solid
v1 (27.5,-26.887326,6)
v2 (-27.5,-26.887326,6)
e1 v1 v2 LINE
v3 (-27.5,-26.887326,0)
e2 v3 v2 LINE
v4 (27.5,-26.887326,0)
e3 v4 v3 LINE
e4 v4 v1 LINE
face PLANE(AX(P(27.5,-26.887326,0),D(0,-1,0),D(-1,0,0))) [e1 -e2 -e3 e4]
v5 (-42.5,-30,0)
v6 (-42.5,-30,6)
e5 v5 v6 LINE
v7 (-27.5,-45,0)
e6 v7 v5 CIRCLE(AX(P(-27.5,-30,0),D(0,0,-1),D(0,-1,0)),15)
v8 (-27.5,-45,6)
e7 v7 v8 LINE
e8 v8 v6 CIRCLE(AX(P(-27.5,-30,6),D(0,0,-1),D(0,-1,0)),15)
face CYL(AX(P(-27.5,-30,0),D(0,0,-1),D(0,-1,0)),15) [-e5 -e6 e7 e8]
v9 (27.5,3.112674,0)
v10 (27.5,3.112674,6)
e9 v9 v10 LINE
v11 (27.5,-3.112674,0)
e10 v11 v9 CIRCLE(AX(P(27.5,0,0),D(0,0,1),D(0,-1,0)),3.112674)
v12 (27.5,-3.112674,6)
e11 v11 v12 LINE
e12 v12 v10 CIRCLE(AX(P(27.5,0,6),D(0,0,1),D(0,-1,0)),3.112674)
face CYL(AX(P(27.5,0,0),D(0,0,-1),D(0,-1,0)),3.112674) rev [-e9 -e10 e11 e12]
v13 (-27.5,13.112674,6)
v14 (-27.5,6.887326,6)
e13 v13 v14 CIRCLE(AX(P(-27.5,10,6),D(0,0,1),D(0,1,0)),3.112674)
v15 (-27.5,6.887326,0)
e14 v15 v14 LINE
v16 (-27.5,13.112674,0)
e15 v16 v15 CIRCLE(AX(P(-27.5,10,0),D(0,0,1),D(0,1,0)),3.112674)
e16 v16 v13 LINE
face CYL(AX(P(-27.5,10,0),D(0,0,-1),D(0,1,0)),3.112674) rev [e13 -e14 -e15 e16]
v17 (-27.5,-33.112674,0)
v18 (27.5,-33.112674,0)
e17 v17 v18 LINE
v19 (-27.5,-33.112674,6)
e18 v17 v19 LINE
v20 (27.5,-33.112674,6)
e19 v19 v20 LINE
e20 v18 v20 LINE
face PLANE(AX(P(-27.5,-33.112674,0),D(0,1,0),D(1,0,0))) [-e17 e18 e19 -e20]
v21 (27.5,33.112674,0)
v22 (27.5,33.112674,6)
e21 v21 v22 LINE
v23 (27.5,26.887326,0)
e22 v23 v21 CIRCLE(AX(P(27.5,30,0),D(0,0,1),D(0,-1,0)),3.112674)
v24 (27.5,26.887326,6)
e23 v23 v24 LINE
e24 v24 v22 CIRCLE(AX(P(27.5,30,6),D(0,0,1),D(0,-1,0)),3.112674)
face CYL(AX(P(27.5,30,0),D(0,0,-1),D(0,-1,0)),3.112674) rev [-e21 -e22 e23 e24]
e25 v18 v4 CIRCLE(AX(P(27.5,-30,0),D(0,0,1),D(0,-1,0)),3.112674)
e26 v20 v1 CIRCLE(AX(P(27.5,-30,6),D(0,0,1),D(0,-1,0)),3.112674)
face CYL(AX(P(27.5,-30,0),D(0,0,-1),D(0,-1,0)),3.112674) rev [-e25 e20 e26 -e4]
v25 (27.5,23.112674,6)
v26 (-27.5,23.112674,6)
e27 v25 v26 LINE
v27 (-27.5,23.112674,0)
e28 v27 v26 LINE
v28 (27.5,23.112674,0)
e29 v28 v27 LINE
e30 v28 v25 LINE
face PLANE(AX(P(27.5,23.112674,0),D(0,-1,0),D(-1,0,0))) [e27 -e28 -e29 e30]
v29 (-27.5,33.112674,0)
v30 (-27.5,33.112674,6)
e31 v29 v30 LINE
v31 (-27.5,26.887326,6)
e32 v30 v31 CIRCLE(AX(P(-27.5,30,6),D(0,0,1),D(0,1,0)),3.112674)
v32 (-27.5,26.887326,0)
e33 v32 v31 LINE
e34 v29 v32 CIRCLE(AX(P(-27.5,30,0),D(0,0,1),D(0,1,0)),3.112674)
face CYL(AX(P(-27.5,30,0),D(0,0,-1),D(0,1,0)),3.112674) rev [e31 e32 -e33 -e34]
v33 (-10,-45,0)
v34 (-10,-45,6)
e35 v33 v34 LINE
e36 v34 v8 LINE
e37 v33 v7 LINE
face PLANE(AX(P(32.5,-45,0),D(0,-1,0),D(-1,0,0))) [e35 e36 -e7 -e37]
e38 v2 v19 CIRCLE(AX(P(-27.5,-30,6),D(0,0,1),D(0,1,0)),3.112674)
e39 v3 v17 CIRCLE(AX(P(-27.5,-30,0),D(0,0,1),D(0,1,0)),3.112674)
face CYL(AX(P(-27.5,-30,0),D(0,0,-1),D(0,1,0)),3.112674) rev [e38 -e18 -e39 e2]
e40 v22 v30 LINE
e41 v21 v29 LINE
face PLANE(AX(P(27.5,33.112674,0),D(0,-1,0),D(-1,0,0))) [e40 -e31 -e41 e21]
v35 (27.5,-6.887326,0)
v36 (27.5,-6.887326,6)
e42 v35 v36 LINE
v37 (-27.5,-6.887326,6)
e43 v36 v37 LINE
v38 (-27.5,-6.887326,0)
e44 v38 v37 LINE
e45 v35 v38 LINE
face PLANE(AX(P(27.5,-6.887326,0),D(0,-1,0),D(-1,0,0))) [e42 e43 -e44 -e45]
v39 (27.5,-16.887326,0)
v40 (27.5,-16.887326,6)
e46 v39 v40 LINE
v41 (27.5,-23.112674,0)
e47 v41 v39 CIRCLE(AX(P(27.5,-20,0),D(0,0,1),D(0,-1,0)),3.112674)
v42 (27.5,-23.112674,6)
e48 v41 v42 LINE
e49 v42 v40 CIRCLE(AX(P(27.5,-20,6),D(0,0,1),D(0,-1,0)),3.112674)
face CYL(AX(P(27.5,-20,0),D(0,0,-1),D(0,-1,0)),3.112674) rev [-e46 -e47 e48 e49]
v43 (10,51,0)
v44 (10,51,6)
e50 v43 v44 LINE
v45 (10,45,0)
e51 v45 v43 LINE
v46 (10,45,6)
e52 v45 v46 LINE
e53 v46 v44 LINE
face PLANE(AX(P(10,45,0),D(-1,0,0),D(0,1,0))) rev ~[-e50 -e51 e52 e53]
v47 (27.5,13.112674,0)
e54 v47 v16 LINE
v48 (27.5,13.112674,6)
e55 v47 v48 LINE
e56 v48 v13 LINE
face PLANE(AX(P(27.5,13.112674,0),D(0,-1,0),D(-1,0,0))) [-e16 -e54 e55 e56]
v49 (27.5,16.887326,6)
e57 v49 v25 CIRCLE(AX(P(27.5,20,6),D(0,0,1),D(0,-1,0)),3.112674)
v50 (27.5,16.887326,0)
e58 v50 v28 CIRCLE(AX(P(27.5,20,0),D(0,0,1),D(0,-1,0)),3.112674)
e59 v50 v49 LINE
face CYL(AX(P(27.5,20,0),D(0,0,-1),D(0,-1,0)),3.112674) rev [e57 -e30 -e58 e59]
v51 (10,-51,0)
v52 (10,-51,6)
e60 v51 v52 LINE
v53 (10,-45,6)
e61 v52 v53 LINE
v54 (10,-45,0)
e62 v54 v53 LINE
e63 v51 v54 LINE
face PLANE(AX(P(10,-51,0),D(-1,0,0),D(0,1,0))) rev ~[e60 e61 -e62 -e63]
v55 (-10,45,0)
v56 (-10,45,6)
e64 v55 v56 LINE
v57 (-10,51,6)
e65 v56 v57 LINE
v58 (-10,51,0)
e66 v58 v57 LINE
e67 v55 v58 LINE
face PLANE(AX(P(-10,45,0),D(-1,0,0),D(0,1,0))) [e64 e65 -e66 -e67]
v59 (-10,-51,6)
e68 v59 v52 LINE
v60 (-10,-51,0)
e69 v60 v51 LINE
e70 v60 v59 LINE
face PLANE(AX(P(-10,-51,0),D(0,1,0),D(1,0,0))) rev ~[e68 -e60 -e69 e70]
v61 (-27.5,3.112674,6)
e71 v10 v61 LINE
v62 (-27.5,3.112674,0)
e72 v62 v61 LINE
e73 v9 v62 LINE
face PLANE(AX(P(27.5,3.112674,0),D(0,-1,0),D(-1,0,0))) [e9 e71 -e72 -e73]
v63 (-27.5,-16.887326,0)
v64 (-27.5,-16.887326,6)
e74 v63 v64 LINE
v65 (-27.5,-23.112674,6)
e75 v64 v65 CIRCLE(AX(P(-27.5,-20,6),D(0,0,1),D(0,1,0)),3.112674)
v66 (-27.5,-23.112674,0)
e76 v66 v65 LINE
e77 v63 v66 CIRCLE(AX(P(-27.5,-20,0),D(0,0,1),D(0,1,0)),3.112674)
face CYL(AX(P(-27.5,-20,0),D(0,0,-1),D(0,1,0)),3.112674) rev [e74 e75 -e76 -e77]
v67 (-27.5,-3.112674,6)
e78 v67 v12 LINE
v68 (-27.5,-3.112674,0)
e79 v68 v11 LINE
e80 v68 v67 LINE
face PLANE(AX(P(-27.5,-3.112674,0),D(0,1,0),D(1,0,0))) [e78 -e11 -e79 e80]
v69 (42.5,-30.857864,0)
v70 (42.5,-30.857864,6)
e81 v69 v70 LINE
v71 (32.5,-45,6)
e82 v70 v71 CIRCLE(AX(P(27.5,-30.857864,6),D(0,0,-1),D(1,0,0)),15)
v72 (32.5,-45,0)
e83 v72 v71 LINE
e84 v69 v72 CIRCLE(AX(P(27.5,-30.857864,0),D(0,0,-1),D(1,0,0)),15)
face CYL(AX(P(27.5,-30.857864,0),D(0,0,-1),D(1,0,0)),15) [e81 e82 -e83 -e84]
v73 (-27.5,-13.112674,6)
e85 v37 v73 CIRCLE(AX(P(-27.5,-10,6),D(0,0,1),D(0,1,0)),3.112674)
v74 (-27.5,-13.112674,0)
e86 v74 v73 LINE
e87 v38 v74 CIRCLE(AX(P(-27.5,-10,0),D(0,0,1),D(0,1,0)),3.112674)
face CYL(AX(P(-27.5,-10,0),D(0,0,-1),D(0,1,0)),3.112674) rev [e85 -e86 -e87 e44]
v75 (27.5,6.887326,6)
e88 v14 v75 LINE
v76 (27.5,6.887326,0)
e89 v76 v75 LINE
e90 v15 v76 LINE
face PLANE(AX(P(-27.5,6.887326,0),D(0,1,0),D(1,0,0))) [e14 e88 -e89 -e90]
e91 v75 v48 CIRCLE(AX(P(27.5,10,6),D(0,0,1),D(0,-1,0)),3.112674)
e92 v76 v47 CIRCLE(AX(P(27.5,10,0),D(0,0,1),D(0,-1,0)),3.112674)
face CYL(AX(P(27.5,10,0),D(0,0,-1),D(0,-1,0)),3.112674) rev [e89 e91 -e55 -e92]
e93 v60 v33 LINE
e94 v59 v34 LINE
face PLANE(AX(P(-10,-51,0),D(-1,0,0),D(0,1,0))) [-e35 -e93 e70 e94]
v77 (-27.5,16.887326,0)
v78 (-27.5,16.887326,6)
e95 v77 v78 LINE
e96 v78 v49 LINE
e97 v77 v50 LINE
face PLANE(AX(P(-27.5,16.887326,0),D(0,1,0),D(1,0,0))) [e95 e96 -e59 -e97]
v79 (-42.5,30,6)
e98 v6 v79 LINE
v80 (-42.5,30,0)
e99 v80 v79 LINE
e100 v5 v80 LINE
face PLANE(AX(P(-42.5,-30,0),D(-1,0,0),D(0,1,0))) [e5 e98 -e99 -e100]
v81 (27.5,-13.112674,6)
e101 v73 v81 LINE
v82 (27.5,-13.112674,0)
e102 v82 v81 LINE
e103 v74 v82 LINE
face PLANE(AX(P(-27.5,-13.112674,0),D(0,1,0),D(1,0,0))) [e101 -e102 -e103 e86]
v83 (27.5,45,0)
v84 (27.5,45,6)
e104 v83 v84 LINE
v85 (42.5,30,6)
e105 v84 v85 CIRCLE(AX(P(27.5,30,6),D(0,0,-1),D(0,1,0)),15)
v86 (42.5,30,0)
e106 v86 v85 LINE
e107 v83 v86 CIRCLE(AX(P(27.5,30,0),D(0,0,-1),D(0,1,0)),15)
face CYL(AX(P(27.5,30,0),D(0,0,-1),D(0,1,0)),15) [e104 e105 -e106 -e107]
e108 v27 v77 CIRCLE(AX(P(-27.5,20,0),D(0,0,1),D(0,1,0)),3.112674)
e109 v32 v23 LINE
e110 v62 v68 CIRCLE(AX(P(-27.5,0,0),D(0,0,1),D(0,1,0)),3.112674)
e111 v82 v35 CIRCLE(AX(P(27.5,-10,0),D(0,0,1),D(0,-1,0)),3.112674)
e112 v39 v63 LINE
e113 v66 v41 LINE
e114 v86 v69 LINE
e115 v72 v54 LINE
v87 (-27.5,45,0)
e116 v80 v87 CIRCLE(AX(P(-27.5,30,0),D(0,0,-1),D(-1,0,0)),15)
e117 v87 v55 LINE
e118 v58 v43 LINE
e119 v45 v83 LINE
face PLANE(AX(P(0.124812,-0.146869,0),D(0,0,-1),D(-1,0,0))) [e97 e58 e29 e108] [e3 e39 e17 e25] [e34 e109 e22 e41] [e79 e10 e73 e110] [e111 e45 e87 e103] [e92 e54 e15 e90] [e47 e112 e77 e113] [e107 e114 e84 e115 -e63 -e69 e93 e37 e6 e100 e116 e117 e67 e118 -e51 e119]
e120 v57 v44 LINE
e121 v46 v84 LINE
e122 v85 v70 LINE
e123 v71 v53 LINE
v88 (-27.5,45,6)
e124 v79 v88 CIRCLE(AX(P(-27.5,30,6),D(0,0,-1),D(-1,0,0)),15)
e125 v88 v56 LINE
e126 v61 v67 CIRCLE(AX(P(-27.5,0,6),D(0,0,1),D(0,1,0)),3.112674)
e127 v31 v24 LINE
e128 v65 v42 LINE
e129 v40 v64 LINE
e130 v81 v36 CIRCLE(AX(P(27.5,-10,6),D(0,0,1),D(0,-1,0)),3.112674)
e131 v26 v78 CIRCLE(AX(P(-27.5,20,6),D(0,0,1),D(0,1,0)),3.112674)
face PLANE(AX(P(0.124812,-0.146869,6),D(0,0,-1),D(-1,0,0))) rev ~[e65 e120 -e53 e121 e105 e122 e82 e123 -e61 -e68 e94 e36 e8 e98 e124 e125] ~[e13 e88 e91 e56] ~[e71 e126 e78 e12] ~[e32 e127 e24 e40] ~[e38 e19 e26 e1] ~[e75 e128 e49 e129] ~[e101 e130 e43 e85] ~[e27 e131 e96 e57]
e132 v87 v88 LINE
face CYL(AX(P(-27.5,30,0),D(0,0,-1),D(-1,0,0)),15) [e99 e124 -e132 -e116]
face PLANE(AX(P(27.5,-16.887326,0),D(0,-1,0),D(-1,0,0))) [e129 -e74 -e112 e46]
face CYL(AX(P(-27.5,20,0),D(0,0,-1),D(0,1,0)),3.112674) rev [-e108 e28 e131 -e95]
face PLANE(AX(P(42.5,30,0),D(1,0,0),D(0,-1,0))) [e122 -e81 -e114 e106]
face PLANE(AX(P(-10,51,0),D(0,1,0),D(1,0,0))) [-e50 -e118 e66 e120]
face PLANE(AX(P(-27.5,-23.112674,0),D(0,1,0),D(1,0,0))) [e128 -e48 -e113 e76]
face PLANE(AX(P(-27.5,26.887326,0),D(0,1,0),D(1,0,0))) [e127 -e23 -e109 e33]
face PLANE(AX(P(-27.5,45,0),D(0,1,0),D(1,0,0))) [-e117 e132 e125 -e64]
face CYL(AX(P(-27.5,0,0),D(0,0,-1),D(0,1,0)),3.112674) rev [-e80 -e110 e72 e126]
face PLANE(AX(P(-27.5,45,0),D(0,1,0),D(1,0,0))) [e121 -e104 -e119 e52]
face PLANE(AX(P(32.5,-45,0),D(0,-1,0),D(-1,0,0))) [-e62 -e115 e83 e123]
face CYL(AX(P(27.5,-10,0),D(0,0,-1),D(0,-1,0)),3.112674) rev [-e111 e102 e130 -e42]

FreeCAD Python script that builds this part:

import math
import FreeCAD as App
import Part
import Sketcher

doc = App.newDocument("Part")
body = doc.addObject("PartDesign::Body", "Body")

sketch1 = body.newObject("Sketcher::SketchObject", "Sketch")
sketch1.AttachmentSupport = (doc.getObject("XY_Plane"), [""])
sketch1.MapMode = "FlatFace"
sketch1.addGeometry(Part.ArcOfCircle(Part.Circle(App.Vector(27.5, 30, 0), App.Vector(0, 0, 1), 15), math.radians(0), math.radians(90)), False)
sketch1.addGeometry(Part.LineSegment(App.Vector(27.5, 45, 0), App.Vector(10, 45, 0)), False)
sketch1.addGeometry(Part.LineSegment(App.Vector(10, 45, 0), App.Vector(10, 51, 0)), False)
sketch1.addGeometry(Part.LineSegment(App.Vector(10, 51, 0), App.Vector(-10, 51, 0)), False)
sketch1.addGeometry(Part.LineSegment(App.Vector(-10, 51, 0), App.Vector(-10, 45, 0)), False)
sketch1.addGeometry(Part.LineSegment(App.Vector(-10, 45, 0), App.Vector(-27.5, 45, 0)), False)
sketch1.addGeometry(Part.ArcOfCircle(Part.Circle(App.Vector(-27.5, 30, 0), App.Vector(0, 0, 1), 15), math.radians(90), math.radians(180)), False)
sketch1.addGeometry(Part.LineSegment(App.Vector(-42.5, 30, 0), App.Vector(-42.5, -30, 0)), False)
sketch1.addGeometry(Part.ArcOfCircle(Part.Circle(App.Vector(-27.5, -30, 0), App.Vector(0, 0, 1), 15), math.radians(180), math.radians(270)), False)
sketch1.addGeometry(Part.LineSegment(App.Vector(-27.5, -45, 0), App.Vector(-10, -45, 0)), False)
sketch1.addGeometry(Part.LineSegment(App.Vector(-10, -45, 0), App.Vector(-10, -51, 0)), False)
sketch1.addGeometry(Part.LineSegment(App.Vector(-10, -51, 0), App.Vector(10, -51, 0)), False)
sketch1.addGeometry(Part.LineSegment(App.Vector(10, -51, 0), App.Vector(10, -45, 0)), False)
sketch1.addGeometry(Part.LineSegment(App.Vector(10, -45, 0), App.Vector(32.5, -45, 0)), False)
sketch1.addGeometry(Part.ArcOfCircle(Part.Circle(App.Vector(27.5, -30.9, 0), App.Vector(0, 0, 1), 15), math.radians(-71), math.radians(0)), False)
sketch1.addGeometry(Part.LineSegment(App.Vector(42.5, -30.9, 0), App.Vector(42.5, 30, 0)), False)
sketch1.addGeometry(Part.LineSegment(App.Vector(27.5, -33.1, 0), App.Vector(-27.5, -33.1, 0)), False)
sketch1.addGeometry(Part.ArcOfCircle(Part.Circle(App.Vector(-27.5, -30, 0), App.Vector(0, 0, 1), 3.1), math.radians(90), math.radians(270)), False)
sketch1.addGeometry(Part.LineSegment(App.Vector(-27.5, -26.9, 0), App.Vector(27.5, -26.9, 0)), False)
sketch1.addGeometry(Part.ArcOfCircle(Part.Circle(App.Vector(27.5, -30, 0), App.Vector(0, 0, 1), 3.1), math.radians(-90), math.radians(90)), False)
sketch1.addGeometry(Part.LineSegment(App.Vector(27.5, -23.1, 0), App.Vector(-27.5, -23.1, 0)), False)
sketch1.addGeometry(Part.ArcOfCircle(Part.Circle(App.Vector(-27.5, -20, 0), App.Vector(0, 0, 1), 3.1), math.radians(90), math.radians(270)), False)
sketch1.addGeometry(Part.LineSegment(App.Vector(-27.5, -16.9, 0), App.Vector(27.5, -16.9, 0)), False)
sketch1.addGeometry(Part.ArcOfCircle(Part.Circle(App.Vector(27.5, -20, 0), App.Vector(0, 0, 1), 3.1), math.radians(-90), math.radians(90)), False)
sketch1.addGeometry(Part.LineSegment(App.Vector(27.5, -13.1, 0), App.Vector(-27.5, -13.1, 0)), False)
sketch1.addGeometry(Part.ArcOfCircle(Part.Circle(App.Vector(-27.5, -10, 0), App.Vector(0, 0, 1), 3.1), math.radians(90), math.radians(270)), False)
sketch1.addGeometry(Part.LineSegment(App.Vector(-27.5, -6.9, 0), App.Vector(27.5, -6.9, 0)), False)
sketch1.addGeometry(Part.ArcOfCircle(Part.Circle(App.Vector(27.5, -10, 0), App.Vector(0, 0, 1), 3.1), math.radians(-90), math.radians(90)), False)
sketch1.addGeometry(Part.LineSegment(App.Vector(27.5, -3.1, 0), App.Vector(-27.5, -3.1, 0)), False)
sketch1.addGeometry(Part.ArcOfCircle(Part.Circle(App.Vector(-27.5, 0, 0), App.Vector(0, 0, 1), 3.1), math.radians(90), math.radians(270)), False)
sketch1.addGeometry(Part.LineSegment(App.Vector(-27.5, 3.1, 0), App.Vector(27.5, 3.1, 0)), False)
sketch1.addGeometry(Part.ArcOfCircle(Part.Circle(App.Vector(27.5, 0, 0), App.Vector(0, 0, 1), 3.1), math.radians(-90), math.radians(90)), False)
sketch1.addGeometry(Part.LineSegment(App.Vector(27.5, 6.9, 0), App.Vector(-27.5, 6.9, 0)), False)
sketch1.addGeometry(Part.ArcOfCircle(Part.Circle(App.Vector(-27.5, 10, 0), App.Vector(0, 0, 1), 3.1), math.radians(90), math.radians(270)), False)
sketch1.addGeometry(Part.LineSegment(App.Vector(-27.5, 13.1, 0), App.Vector(27.5, 13.1, 0)), False)
sketch1.addGeometry(Part.ArcOfCircle(Part.Circle(App.Vector(27.5, 10, 0), App.Vector(0, 0, 1), 3.1), math.radians(-90), math.radians(90)), False)
sketch1.addGeometry(Part.LineSegment(App.Vector(27.5, 16.9, 0), App.Vector(-27.5, 16.9, 0)), False)
sketch1.addGeometry(Part.ArcOfCircle(Part.Circle(App.Vector(-27.5, 20, 0), App.Vector(0, 0, 1), 3.1), math.radians(90), math.radians(270)), False)
sketch1.addGeometry(Part.LineSegment(App.Vector(-27.5, 23.1, 0), App.Vector(27.5, 23.1, 0)), False)
sketch1.addGeometry(Part.ArcOfCircle(Part.Circle(App.Vector(27.5, 20, 0), App.Vector(0, 0, 1), 3.1), math.radians(-90), math.radians(90)), False)
sketch1.addGeometry(Part.LineSegment(App.Vector(27.5, 26.9, 0), App.Vector(-27.5, 26.9, 0)), False)
sketch1.addGeometry(Part.ArcOfCircle(Part.Circle(App.Vector(-27.5, 30, 0), App.Vector(0, 0, 1), 3.1), math.radians(90), math.radians(270)), False)
sketch1.addGeometry(Part.LineSegment(App.Vector(-27.5, 33.1, 0), App.Vector(27.5, 33.1, 0)), False)
sketch1.addGeometry(Part.ArcOfCircle(Part.Circle(App.Vector(27.5, 30, 0), App.Vector(0, 0, 1), 3.1), math.radians(-90), math.radians(90)), False)
sketch1.addConstraint(Sketcher.Constraint("Tangent", 0, 2, 1, 1))
sketch1.addConstraint(Sketcher.Constraint("Coincident", 1, 2, 2, 1))
sketch1.addConstraint(Sketcher.Constraint("Coincident", 2, 2, 3, 1))
sketch1.addConstraint(Sketcher.Constraint("Coincident", 3, 2, 4, 1))
sketch1.addConstraint(Sketcher.Constraint("Coincident", 4, 2, 5, 1))
sketch1.addConstraint(Sketcher.Constraint("Tangent", 5, 2, 6, 1))
sketch1.addConstraint(Sketcher.Constraint("Tangent", 6, 2, 7, 1))
sketch1.addConstraint(Sketcher.Constraint("Tangent", 7, 2, 8, 1))
sketch1.addConstraint(Sketcher.Constraint("Tangent", 8, 2, 9, 1))
sketch1.addConstraint(Sketcher.Constraint("Coincident", 9, 2, 10, 1))
sketch1.addConstraint(Sketcher.Constraint("Coincident", 10, 2, 11, 1))
sketch1.addConstraint(Sketcher.Constraint("Coincident", 11, 2, 12, 1))
sketch1.addConstraint(Sketcher.Constraint("Coincident", 12, 2, 13, 1))
sketch1.addConstraint(Sketcher.Constraint("Coincident", 13, 2, 14, 1))
sketch1.addConstraint(Sketcher.Constraint("Tangent", 14, 2, 15, 1))
sketch1.addConstraint(Sketcher.Constraint("Tangent", 15, 2, 0, 1))
sketch1.addConstraint(Sketcher.Constraint("Tangent", 16, 2, 17, 2))
sketch1.addConstraint(Sketcher.Constraint("Tangent", 17, 1, 18, 1))
sketch1.addConstraint(Sketcher.Constraint("Tangent", 18, 2, 19, 2))
sketch1.addConstraint(Sketcher.Constraint("Tangent", 19, 1, 16, 1))
sketch1.addConstraint(Sketcher.Constraint("Tangent", 20, 2, 21, 2))
sketch1.addConstraint(Sketcher.Constraint("Tangent", 21, 1, 22, 1))
sketch1.addConstraint(Sketcher.Constraint("Tangent", 22, 2, 23, 2))
sketch1.addConstraint(Sketcher.Constraint("Tangent", 23, 1, 20, 1))
sketch1.addConstraint(Sketcher.Constraint("Tangent", 24, 2, 25, 2))
sketch1.addConstraint(Sketcher.Constraint("Tangent", 25, 1, 26, 1))
sketch1.addConstraint(Sketcher.Constraint("Tangent", 26, 2, 27, 2))
sketch1.addConstraint(Sketcher.Constraint("Tangent", 27, 1, 24, 1))
sketch1.addConstraint(Sketcher.Constraint("Tangent", 28, 2, 29, 2))
sketch1.addConstraint(Sketcher.Constraint("Tangent", 29, 1, 30, 1))
sketch1.addConstraint(Sketcher.Constraint("Tangent", 30, 2, 31, 2))
sketch1.addConstraint(Sketcher.Constraint("Tangent", 31, 1, 28, 1))
sketch1.addConstraint(Sketcher.Constraint("Tangent", 32, 2, 33, 2))
sketch1.addConstraint(Sketcher.Constraint("Tangent", 33, 1, 34, 1))
sketch1.addConstraint(Sketcher.Constraint("Tangent", 34, 2, 35, 2))
sketch1.addConstraint(Sketcher.Constraint("Tangent", 35, 1, 32, 1))
sketch1.addConstraint(Sketcher.Constraint("Tangent", 36, 2, 37, 2))
sketch1.addConstraint(Sketcher.Constraint("Tangent", 37, 1, 38, 1))
sketch1.addConstraint(Sketcher.Constraint("Tangent", 38, 2, 39, 2))
sketch1.addConstraint(Sketcher.Constraint("Tangent", 39, 1, 36, 1))
sketch1.addConstraint(Sketcher.Constraint("Tangent", 40, 2, 41, 2))
sketch1.addConstraint(Sketcher.Constraint("Tangent", 41, 1, 42, 1))
sketch1.addConstraint(Sketcher.Constraint("Tangent", 42, 2, 43, 2))
sketch1.addConstraint(Sketcher.Constraint("Tangent", 43, 1, 40, 1))
sketch1.addConstraint(Sketcher.Constraint("Horizontal", 1))
sketch1.addConstraint(Sketcher.Constraint("Vertical", 2))
sketch1.addConstraint(Sketcher.Constraint("Horizontal", 3))
sketch1.addConstraint(Sketcher.Constraint("Vertical", 4))
sketch1.addConstraint(Sketcher.Constraint("Horizontal", 5))
sketch1.addConstraint(Sketcher.Constraint("Vertical", 7))
sketch1.addConstraint(Sketcher.Constraint("Horizontal", 9))
sketch1.addConstraint(Sketcher.Constraint("Vertical", 10))
sketch1.addConstraint(Sketcher.Constraint("Horizontal", 11))
sketch1.addConstraint(Sketcher.Constraint("Vertical", 12))
sketch1.addConstraint(Sketcher.Constraint("Horizontal", 13))
sketch1.addConstraint(Sketcher.Constraint("Vertical", 15))
sketch1.addConstraint(Sketcher.Constraint("Horizontal", 16))
sketch1.addConstraint(Sketcher.Constraint("Horizontal", 18))
sketch1.addConstraint(Sketcher.Constraint("Horizontal", 20))
sketch1.addConstraint(Sketcher.Constraint("Horizontal", 22))
sketch1.addConstraint(Sketcher.Constraint("Horizontal", 24))
sketch1.addConstraint(Sketcher.Constraint("Horizontal", 26))
sketch1.addConstraint(Sketcher.Constraint("Horizontal", 28))
sketch1.addConstraint(Sketcher.Constraint("Horizontal", 30))
sketch1.addConstraint(Sketcher.Constraint("Horizontal", 32))
sketch1.addConstraint(Sketcher.Constraint("Horizontal", 34))
sketch1.addConstraint(Sketcher.Constraint("Horizontal", 36))
sketch1.addConstraint(Sketcher.Constraint("Horizontal", 38))
sketch1.addConstraint(Sketcher.Constraint("Horizontal", 40))
sketch1.addConstraint(Sketcher.Constraint("Horizontal", 42))
sketch1.addConstraint(Sketcher.Constraint("Coincident", 17, 3, 8, 3))
sketch1.addConstraint(Sketcher.Constraint("Coincident", 41, 3, 6, 3))
sketch1.addConstraint(Sketcher.Constraint("Coincident", 43, 3, 0, 3))
sketch1.addConstraint(Sketcher.Constraint("Equal", 0, 6))
sketch1.addConstraint(Sketcher.Constraint("Equal", 6, 8))
sketch1.addConstraint(Sketcher.Constraint("Equal", 8, 14))
sketch1.addConstraint(Sketcher.Constraint("Equal", 19, 21))
sketch1.addConstraint(Sketcher.Constraint("Equal", 23, 25))
sketch1.addConstraint(Sketcher.Constraint("Equal", 27, 29))
sketch1.addConstraint(Sketcher.Constraint("Equal", 31, 33))
sketch1.addConstraint(Sketcher.Constraint("Equal", 35, 37))
sketch1.addConstraint(Sketcher.Constraint("Equal", 39, 41))
sketch1.addConstraint(Sketcher.Constraint("Symmetric", 0, 3, 8, 3, -1, 1))
sketch1.addConstraint(Sketcher.Constraint("Symmetric", 29, 3, 31, 3, -1, 1))
sketch1.addConstraint(Sketcher.Constraint("Symmetric", 27, 3, 33, 3, -1, 1))
sketch1.addConstraint(Sketcher.Constraint("Symmetric", 23, 3, 37, 3, -1, 1))
sketch1.addConstraint(Sketcher.Constraint("Symmetric", 2, 2, 10, 2, -1, 1))
sketch1.addConstraint(Sketcher.Constraint("Symmetric", 4, 2, 12, 2, -1, 1))
sketch1.addConstraint(Sketcher.Constraint("Vertical", 14, 3, 19, 3))
sketch1.addConstraint(Sketcher.Constraint("Vertical", 17, 3, 21, 3))
sketch1.addConstraint(Sketcher.Constraint("Vertical", 19, 3, 23, 3))
sketch1.addConstraint(Sketcher.Constraint("Vertical", 21, 3, 25, 3))
sketch1.addConstraint(Sketcher.Constraint("Vertical", 23, 3, 27, 3))
sketch1.addConstraint(Sketcher.Constraint("Vertical", 25, 3, 29, 3))
sketch1.addConstraint(Sketcher.Constraint("Vertical", 31, 3, 35, 3))
sketch1.addConstraint(Sketcher.Constraint("Vertical", 35, 3, 39, 3))
sketch1.addConstraint(Sketcher.Constraint("Vertical", 4, 2, 9, 2))
sketch1.addConstraint(Sketcher.Constraint("Radius", 0, 15.0))
sketch1.addConstraint(Sketcher.Constraint("DistanceX", 3, 2, 3, 1, 20.0))
sketch1.addConstraint(Sketcher.Constraint("DistanceX", 16, 2, 16, 1, 55.0))
sketch1.addConstraint(Sketcher.Constraint("DistanceY", 2, 1, 2, 2, 6.0))
sketch1.addConstraint(Sketcher.Constraint("DistanceY", 7, 2, 7, 1, 60.0))
sketch1.addConstraint(Sketcher.Constraint("DistanceX", 13, 1, 13, 2, 22.5))
sketch1.addConstraint(Sketcher.Constraint("DistanceY", 21, 3, -1, 1, 20.0))
sketch1.addConstraint(Sketcher.Constraint("DistanceY", 25, 3, -1, 1, 10.0))
sketch1.addConstraint(Sketcher.Constraint("Radius", 17, 3.112674))
pad1 = body.newObject("PartDesign::Pad", "Pad")
pad1.Profile = sketch1
pad1.Length = 6

doc.recompute()
